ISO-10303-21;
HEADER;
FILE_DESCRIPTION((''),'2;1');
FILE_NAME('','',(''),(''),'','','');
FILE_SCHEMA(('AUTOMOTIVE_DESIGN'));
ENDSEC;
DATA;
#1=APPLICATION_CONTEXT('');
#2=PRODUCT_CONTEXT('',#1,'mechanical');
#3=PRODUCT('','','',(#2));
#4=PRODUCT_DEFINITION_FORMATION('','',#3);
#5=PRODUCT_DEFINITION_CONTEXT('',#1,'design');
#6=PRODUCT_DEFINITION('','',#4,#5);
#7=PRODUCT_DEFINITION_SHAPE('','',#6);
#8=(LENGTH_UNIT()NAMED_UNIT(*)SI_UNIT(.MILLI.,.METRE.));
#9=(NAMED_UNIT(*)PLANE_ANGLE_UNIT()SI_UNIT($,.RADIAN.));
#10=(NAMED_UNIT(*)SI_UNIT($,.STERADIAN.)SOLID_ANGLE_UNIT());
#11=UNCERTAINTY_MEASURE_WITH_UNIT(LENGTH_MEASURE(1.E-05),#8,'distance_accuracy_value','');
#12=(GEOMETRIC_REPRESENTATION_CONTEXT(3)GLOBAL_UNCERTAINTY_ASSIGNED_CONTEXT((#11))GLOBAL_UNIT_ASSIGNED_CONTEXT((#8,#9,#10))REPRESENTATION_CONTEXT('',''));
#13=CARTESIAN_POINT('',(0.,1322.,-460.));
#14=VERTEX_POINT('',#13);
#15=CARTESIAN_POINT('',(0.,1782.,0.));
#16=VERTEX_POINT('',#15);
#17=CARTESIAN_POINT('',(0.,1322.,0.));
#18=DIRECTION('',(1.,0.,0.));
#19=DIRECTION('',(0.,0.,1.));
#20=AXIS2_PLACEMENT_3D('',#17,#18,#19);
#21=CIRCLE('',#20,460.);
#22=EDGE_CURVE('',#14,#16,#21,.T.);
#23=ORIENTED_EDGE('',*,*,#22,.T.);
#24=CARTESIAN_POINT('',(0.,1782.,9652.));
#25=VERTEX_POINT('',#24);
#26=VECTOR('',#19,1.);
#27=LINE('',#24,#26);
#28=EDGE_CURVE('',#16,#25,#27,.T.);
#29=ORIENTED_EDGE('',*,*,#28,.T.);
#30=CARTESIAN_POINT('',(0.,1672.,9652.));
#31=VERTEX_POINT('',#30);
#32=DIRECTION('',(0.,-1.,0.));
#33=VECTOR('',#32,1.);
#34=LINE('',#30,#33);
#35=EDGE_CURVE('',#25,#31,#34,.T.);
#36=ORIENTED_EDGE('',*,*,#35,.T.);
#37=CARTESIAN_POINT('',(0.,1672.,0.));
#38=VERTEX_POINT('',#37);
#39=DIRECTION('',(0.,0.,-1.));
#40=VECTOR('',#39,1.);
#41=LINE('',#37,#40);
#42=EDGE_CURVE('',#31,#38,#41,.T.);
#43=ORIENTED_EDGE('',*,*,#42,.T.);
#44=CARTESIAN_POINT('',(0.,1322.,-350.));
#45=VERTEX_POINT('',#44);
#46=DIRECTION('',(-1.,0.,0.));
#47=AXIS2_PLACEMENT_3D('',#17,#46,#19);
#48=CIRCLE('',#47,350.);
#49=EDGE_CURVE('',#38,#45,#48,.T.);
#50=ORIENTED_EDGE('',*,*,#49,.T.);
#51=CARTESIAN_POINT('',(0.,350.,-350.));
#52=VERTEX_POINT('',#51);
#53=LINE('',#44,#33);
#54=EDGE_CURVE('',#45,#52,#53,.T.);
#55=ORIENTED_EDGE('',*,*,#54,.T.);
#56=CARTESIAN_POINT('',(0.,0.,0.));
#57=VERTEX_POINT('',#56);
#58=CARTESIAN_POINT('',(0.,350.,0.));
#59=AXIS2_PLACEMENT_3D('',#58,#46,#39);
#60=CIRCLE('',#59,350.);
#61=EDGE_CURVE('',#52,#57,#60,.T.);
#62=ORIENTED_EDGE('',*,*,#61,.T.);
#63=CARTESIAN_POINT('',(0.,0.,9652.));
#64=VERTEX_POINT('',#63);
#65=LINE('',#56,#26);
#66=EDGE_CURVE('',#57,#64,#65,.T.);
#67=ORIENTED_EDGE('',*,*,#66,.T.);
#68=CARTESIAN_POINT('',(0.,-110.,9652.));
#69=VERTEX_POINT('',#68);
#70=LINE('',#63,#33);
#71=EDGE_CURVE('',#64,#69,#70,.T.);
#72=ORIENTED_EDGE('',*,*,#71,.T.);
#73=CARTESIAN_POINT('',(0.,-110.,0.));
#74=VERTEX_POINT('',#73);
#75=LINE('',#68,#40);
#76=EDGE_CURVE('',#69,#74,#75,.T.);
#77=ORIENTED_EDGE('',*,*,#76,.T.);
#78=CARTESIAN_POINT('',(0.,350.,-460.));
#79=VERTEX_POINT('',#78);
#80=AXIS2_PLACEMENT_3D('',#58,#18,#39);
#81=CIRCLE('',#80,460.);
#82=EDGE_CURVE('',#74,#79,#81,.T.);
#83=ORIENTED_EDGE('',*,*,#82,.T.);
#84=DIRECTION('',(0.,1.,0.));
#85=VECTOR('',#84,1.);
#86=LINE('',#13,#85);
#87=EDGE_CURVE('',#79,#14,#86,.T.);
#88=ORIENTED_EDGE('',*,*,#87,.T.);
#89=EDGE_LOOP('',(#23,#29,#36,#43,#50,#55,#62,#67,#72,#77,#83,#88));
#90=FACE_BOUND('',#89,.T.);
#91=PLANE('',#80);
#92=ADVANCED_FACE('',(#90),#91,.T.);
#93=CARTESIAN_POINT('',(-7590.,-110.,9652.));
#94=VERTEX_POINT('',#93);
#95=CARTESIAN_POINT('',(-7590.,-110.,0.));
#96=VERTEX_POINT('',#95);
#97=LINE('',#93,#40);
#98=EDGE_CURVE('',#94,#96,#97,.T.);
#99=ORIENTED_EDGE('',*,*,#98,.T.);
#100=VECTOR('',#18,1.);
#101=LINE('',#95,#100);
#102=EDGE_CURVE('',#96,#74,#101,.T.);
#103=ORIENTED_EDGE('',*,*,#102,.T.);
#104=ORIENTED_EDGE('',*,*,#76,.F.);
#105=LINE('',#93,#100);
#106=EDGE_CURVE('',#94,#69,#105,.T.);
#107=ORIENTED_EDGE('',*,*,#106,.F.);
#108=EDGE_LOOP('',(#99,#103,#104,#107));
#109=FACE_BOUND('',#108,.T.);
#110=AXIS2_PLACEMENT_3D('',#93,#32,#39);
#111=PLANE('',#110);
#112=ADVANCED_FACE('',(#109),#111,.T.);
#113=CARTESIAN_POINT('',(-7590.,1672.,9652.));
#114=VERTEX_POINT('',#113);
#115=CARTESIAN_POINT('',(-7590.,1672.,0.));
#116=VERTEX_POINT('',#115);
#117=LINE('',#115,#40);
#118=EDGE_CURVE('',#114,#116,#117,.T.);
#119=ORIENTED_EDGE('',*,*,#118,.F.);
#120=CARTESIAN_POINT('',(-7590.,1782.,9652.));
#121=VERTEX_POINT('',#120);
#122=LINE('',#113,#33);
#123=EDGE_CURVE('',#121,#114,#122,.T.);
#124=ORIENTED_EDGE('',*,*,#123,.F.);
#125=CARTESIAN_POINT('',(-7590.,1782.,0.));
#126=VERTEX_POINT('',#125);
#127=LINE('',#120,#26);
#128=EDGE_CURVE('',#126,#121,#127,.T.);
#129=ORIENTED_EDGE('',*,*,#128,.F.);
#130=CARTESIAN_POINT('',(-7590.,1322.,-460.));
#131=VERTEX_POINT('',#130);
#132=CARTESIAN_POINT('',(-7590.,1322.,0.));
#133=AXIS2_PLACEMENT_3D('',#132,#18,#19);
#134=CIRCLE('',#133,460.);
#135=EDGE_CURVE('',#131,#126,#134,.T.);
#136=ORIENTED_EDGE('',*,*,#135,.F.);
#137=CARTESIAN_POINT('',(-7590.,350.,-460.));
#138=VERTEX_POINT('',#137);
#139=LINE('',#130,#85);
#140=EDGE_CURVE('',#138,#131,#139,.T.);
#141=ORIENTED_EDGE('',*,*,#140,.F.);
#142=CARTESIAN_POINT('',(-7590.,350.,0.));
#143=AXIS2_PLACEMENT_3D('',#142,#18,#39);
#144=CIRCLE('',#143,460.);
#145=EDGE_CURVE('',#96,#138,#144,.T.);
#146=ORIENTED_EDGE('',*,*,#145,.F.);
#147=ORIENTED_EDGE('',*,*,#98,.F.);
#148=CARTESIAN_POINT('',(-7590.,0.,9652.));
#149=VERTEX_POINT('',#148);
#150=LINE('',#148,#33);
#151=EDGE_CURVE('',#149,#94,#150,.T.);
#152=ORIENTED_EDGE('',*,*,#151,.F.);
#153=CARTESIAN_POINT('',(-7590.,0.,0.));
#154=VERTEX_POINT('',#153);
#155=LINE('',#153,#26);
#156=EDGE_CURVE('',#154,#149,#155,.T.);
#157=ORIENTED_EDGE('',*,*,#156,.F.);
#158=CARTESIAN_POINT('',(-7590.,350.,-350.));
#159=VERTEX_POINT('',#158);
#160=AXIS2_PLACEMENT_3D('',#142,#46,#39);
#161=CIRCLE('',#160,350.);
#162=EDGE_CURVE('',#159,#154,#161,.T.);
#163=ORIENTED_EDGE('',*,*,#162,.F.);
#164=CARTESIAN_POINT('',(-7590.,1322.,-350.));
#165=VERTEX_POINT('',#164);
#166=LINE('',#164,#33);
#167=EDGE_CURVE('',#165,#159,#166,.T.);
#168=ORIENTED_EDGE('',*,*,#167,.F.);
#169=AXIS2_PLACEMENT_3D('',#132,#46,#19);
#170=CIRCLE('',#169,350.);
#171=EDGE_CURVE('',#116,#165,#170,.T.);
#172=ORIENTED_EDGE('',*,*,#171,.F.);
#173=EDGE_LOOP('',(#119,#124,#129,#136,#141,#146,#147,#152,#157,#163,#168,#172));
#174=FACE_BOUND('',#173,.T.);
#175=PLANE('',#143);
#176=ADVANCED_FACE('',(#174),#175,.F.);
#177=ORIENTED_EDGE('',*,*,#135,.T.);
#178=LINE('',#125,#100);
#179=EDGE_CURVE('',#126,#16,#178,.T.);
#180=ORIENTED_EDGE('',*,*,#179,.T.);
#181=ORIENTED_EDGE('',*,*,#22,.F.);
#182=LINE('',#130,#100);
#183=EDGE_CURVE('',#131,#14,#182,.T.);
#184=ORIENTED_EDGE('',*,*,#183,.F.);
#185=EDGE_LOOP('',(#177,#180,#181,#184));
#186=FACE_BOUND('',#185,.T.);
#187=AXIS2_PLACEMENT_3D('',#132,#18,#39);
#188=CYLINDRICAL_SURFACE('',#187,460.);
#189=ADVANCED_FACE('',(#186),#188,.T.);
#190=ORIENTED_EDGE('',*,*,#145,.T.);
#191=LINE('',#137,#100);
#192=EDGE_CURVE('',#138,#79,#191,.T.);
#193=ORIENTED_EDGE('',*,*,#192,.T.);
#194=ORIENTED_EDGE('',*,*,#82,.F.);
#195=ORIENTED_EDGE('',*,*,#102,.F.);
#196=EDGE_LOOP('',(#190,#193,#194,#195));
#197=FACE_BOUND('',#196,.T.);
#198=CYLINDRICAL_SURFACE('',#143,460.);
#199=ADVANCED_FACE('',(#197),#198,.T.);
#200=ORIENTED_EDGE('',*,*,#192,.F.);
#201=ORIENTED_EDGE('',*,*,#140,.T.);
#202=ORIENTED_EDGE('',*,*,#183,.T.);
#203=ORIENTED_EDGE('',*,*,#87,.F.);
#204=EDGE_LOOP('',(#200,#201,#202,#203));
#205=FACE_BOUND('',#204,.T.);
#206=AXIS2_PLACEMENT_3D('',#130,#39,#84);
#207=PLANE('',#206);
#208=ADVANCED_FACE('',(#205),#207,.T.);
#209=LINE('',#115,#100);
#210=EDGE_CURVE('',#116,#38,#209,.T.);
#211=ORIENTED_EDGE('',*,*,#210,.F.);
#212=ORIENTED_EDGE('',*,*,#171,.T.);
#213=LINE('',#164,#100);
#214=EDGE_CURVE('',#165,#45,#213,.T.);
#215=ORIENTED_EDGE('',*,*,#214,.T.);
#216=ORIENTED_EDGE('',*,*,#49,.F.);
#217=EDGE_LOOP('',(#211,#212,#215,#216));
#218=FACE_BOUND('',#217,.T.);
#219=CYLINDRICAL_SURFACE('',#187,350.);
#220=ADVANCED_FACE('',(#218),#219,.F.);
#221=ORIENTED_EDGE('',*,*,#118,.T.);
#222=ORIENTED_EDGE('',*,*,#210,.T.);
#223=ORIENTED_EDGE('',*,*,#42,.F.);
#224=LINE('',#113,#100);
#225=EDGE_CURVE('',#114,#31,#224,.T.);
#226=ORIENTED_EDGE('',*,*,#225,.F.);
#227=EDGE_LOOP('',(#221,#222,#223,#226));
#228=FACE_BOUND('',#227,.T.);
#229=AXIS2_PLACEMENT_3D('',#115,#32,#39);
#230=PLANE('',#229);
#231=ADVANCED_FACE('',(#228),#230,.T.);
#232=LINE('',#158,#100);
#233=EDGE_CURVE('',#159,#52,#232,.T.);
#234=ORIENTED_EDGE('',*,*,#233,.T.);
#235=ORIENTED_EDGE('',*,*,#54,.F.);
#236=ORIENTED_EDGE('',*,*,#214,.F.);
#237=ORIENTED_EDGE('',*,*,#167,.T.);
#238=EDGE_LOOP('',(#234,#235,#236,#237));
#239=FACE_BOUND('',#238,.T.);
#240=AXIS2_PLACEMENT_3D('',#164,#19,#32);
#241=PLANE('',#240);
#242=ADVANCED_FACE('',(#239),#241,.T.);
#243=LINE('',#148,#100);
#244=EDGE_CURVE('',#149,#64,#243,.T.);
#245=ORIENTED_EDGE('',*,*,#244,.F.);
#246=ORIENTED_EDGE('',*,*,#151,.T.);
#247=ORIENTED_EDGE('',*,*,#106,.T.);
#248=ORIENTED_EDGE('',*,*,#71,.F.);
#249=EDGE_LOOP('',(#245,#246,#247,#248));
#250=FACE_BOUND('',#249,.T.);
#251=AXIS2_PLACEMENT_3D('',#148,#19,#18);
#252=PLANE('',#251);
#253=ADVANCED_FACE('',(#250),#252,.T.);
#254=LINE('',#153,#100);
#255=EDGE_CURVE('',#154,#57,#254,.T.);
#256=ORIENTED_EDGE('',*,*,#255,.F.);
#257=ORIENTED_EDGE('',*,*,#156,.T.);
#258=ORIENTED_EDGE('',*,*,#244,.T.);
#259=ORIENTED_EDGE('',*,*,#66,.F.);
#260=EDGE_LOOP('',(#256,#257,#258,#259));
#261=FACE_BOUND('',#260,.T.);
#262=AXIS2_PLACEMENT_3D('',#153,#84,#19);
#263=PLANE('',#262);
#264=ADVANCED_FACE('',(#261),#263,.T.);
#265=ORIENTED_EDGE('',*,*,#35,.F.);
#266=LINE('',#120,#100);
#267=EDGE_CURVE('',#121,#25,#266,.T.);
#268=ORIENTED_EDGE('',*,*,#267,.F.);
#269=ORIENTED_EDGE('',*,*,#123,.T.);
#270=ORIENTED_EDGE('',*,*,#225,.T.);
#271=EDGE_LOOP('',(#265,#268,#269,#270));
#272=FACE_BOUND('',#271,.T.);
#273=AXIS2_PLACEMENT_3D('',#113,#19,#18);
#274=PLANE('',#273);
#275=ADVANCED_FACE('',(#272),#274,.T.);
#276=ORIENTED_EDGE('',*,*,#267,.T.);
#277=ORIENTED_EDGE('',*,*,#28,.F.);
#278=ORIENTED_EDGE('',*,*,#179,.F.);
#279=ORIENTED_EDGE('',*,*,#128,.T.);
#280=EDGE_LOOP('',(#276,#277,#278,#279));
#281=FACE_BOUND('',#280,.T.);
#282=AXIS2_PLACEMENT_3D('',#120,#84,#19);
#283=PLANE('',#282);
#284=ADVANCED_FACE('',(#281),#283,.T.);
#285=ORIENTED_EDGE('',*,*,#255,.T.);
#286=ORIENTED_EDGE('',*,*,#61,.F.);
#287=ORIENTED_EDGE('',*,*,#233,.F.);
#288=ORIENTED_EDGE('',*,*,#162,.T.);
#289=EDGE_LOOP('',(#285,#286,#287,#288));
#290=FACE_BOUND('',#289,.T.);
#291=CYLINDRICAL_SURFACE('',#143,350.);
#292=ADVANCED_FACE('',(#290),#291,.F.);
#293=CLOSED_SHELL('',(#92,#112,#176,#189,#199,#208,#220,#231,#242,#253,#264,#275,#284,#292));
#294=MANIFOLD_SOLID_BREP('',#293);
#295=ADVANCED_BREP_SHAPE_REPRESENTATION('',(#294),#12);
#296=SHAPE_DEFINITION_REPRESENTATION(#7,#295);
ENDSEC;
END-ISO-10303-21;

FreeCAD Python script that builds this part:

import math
import FreeCAD as App
import Part
import Sketcher

V = App.Vector

doc = App.newDocument("Part")
params = doc.addObject("Spreadsheet::Sheet", "Params")
for row, (alias, value) in enumerate([
    ("sketch1_radius", "460 mm"),
    ("sketch1_radius2", "350 mm"),
    ("sketch1_width", "972 mm"),
    ("sketch1_height", "9652 mm"),
    ("pad1_length", "7590 mm"),
], start=1):
    params.set(f"A{row}", alias)
    params.set(f"B{row}", "=" + value)
    params.setAlias(f"B{row}", alias)

body = doc.addObject("PartDesign::Body", "Body")

# Sketch on YZ plane
sketch1 = doc.addObject("Sketcher::SketchObject", "Sketch")
body.addObject(sketch1)
sketch1.AttachmentSupport = (doc.YZ_Plane, [""])
sketch1.MapMode = "FlatFace"
sketch1.addGeometry(Part.LineSegment(V(0, 0, 0), V(0, 9652, 0)), False)
sketch1.addGeometry(Part.LineSegment(V(0, 9652, 0), V(-110, 9652, 0)), False)
sketch1.addGeometry(Part.LineSegment(V(-110, 9652, 0), V(-110, 0, 0)), False)
sketch1.addGeometry(Part.ArcOfCircle(Part.Circle(V(350, 0, 0), V(0, 0, 1), 460), math.radians(180), math.radians(270)), False)
sketch1.addGeometry(Part.LineSegment(V(350, -460, 0), V(1322, -460, 0)), False)
sketch1.addGeometry(Part.ArcOfCircle(Part.Circle(V(1322, 0, 0), V(0, 0, 1), 460), math.radians(-90), math.radians(0)), False)
sketch1.addGeometry(Part.LineSegment(V(1782, 0, 0), V(1782, 9652, 0)), False)
sketch1.addGeometry(Part.LineSegment(V(1782, 9652, 0), V(1672, 9652, 0)), False)
sketch1.addGeometry(Part.LineSegment(V(1672, 9652, 0), V(1672, 0, 0)), False)
sketch1.addGeometry(Part.ArcOfCircle(Part.Circle(V(1322, 0, 0), V(0, 0, 1), 350), math.radians(-90), math.radians(0)), False)
sketch1.addGeometry(Part.LineSegment(V(1322, -350, 0), V(350, -350, 0)), False)
sketch1.addGeometry(Part.ArcOfCircle(Part.Circle(V(350, 0, 0), V(0, 0, 1), 350), math.radians(-180), math.radians(-90)), False)
sketch1.addConstraint(Sketcher.Constraint("Coincident", 0, 2, 1, 1))
sketch1.addConstraint(Sketcher.Constraint("Coincident", 1, 2, 2, 1))
sketch1.addConstraint(Sketcher.Constraint("Tangent", 2, 2, 3, 1))
sketch1.addConstraint(Sketcher.Constraint("Tangent", 3, 2, 4, 1))
sketch1.addConstraint(Sketcher.Constraint("Tangent", 4, 2, 5, 1))
sketch1.addConstraint(Sketcher.Constraint("Tangent", 5, 2, 6, 1))
sketch1.addConstraint(Sketcher.Constraint("Coincident", 6, 2, 7, 1))
sketch1.addConstraint(Sketcher.Constraint("Coincident", 7, 2, 8, 1))
sketch1.addConstraint(Sketcher.Constraint("Tangent", 8, 2, 9, 2))
sketch1.addConstraint(Sketcher.Constraint("Tangent", 9, 1, 10, 1))
sketch1.addConstraint(Sketcher.Constraint("Tangent", 10, 2, 11, 2))
sketch1.addConstraint(Sketcher.Constraint("Tangent", 11, 1, 0, 1))
sketch1.addConstraint(Sketcher.Constraint("Vertical", 0))
sketch1.addConstraint(Sketcher.Constraint("Horizontal", 1))
sketch1.addConstraint(Sketcher.Constraint("Vertical", 2))
sketch1.addConstraint(Sketcher.Constraint("Horizontal", 4))
sketch1.addConstraint(Sketcher.Constraint("Vertical", 6))
sketch1.addConstraint(Sketcher.Constraint("Horizontal", 7))
sketch1.addConstraint(Sketcher.Constraint("Vertical", 8))
sketch1.addConstraint(Sketcher.Constraint("Horizontal", 10))
sketch1.addConstraint(Sketcher.Constraint("Coincident", 9, 3, 5, 3))
sketch1.addConstraint(Sketcher.Constraint("Coincident", 11, 3, 3, 3))
sketch1.addConstraint(Sketcher.Constraint("Equal", 3, 5))
sketch1.addConstraint(Sketcher.Constraint("PointOnObject", 3, 3, -1))
sketch1.addConstraint(Sketcher.Constraint("PointOnObject", 0, 2, -2))
sketch1.addConstraint(Sketcher.Constraint("Horizontal", 1, 2, 6, 2))
sketch1.addConstraint(Sketcher.Constraint("Radius", 3, 460.0))
sketch1.addConstraint(Sketcher.Constraint("Radius", 9, 350.0))
sketch1.addConstraint(Sketcher.Constraint("DistanceX", 4, 1, 4, 2, 972.0))
sketch1.addConstraint(Sketcher.Constraint("DistanceY", 0, 1, 0, 2, 9652.0))
sketch1.setExpression("Constraints[26]", "Params.sketch1_radius")
sketch1.setExpression("Constraints[27]", "Params.sketch1_radius2")
sketch1.setExpression("Constraints[28]", "Params.sketch1_width")
sketch1.setExpression("Constraints[29]", "Params.sketch1_height")
pad1 = doc.addObject("PartDesign::Pad", "Pad")
body.addObject(pad1)
pad1.Profile = sketch1
pad1.setExpression("Length", "Params.pad1_length")
pad1.Reversed = True

doc.recompute()
